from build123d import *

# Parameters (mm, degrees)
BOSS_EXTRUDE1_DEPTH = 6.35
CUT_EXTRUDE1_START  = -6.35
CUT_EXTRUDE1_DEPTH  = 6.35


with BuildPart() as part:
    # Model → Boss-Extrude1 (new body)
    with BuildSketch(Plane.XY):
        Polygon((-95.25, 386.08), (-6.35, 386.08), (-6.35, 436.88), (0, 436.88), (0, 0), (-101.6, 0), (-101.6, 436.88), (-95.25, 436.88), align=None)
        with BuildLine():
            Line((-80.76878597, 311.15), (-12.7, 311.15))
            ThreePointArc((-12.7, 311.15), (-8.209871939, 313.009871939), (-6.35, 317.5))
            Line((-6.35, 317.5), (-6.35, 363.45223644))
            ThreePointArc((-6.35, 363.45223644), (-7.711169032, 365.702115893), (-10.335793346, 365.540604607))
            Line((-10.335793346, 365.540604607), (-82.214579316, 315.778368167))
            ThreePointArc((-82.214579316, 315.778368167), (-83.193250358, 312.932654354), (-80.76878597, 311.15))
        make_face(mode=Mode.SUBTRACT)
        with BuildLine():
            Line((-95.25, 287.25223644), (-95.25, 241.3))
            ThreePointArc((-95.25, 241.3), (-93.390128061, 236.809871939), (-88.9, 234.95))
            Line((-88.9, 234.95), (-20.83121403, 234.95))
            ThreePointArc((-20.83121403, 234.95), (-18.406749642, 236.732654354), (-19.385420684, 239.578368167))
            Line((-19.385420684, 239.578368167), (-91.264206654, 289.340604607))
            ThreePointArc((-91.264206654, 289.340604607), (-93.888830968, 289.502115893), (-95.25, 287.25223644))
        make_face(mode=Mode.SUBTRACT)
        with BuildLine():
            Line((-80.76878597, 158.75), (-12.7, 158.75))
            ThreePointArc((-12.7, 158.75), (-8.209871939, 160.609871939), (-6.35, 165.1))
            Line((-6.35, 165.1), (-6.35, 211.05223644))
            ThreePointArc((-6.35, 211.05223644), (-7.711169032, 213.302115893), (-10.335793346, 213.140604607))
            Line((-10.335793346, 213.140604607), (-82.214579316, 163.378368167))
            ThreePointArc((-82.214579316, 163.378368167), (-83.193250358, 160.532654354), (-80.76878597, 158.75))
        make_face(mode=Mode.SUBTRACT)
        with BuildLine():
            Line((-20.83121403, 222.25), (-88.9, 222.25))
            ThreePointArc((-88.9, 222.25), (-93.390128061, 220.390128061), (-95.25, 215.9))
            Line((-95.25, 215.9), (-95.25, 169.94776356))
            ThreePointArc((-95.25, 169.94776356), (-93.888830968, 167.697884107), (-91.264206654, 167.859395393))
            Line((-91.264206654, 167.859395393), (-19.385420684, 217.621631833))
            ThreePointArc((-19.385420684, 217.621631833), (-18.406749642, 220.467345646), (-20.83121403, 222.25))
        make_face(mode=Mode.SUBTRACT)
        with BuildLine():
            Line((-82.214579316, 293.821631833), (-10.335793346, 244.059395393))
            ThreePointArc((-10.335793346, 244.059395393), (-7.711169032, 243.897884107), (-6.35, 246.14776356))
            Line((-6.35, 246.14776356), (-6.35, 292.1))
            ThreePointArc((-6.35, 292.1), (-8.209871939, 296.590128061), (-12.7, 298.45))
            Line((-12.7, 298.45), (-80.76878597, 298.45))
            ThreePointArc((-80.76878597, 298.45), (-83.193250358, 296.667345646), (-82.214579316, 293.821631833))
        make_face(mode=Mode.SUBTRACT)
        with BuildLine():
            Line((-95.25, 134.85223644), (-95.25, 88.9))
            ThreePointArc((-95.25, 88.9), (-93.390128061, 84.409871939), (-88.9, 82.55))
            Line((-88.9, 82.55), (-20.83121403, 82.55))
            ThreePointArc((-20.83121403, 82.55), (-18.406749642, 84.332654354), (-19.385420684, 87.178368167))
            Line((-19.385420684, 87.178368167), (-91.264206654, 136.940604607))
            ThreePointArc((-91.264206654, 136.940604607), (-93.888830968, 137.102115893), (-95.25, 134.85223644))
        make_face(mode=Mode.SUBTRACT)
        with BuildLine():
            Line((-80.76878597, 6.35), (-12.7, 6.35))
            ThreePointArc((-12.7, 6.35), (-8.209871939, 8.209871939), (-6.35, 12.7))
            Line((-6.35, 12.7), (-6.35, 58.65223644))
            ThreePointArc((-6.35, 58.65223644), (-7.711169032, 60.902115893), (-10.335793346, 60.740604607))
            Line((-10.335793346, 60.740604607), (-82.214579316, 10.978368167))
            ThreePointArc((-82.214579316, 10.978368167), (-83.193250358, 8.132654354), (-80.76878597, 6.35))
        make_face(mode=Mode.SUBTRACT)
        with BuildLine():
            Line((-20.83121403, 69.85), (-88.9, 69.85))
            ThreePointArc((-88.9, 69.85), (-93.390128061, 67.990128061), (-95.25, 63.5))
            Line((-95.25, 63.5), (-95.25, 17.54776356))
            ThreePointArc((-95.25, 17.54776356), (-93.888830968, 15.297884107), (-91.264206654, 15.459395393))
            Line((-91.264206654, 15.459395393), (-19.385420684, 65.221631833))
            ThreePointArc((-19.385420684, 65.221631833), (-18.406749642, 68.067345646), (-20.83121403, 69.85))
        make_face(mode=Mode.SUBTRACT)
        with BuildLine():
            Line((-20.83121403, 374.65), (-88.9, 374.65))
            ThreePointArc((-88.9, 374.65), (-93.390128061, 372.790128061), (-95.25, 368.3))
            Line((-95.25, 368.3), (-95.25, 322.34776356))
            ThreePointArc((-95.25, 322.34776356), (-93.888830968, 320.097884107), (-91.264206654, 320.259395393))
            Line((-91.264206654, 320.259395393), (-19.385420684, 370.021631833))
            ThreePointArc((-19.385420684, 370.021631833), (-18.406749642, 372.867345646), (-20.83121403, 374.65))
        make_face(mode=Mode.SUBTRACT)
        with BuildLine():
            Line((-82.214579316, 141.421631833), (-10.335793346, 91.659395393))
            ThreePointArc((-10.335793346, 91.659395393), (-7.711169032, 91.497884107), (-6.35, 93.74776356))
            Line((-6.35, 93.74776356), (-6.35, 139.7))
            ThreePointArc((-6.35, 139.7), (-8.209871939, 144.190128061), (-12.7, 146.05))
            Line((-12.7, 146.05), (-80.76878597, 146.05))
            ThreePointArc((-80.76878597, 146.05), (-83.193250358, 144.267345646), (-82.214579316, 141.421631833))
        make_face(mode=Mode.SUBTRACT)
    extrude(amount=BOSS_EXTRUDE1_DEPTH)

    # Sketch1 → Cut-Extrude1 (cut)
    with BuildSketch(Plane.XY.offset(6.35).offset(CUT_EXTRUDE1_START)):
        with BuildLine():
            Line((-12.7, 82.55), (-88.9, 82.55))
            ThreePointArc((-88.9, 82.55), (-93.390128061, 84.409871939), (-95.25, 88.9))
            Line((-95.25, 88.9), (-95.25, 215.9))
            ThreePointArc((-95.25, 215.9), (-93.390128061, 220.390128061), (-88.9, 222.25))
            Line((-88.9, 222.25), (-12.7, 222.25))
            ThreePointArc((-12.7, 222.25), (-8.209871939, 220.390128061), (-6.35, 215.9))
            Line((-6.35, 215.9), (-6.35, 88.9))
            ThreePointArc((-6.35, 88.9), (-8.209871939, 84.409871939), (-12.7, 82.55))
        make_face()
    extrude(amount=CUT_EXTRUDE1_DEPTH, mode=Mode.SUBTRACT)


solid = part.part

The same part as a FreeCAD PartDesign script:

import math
import FreeCAD as App
import Part
import Sketcher
Q = App.Units.Quantity

doc = App.newDocument("Part")
body = doc.addObject("PartDesign::Body", "Body")

# Sketch on XY plane
sketch1 = body.newObject("Sketcher::SketchObject", "Sketch")
sketch1.AttachmentSupport = (doc.getObject("XY_Plane"), [""])
sketch1.MapMode = "FlatFace"
sketch1.addGeometry(Part.LineSegment(App.Vector(-6.3, 386.1, 0), App.Vector(-95.2, 386.1, 0)), False)
sketch1.addGeometry(Part.LineSegment(App.Vector(-95.2, 386.1, 0), App.Vector(-95.2, 436.9, 0)), False)
sketch1.addGeometry(Part.LineSegment(App.Vector(-95.2, 436.9, 0), App.Vector(-101.6, 436.9, 0)), False)
sketch1.addGeometry(Part.LineSegment(App.Vector(-101.6, 436.9, 0), App.Vector(-101.6, 0, 0)), False)
sketch1.addGeometry(Part.LineSegment(App.Vector(-101.6, 0, 0), App.Vector(0, 0, 0)), False)
sketch1.addGeometry(Part.LineSegment(App.Vector(0, 0, 0), App.Vector(0, 436.9, 0)), False)
sketch1.addGeometry(Part.LineSegment(App.Vector(0, 436.9, 0), App.Vector(-6.3, 436.9, 0)), False)
sketch1.addGeometry(Part.LineSegment(App.Vector(-6.3, 436.9, 0), App.Vector(-6.3, 386.1, 0)), False)
sketch1.addGeometry(Part.ArcOfCircle(Part.Circle(App.Vector(-80.8, 8.9, 0), App.Vector(0, 0, 1), 2.5), math.radians(125), math.radians(270)), False)
sketch1.addGeometry(Part.LineSegment(App.Vector(-82.2, 11, 0), App.Vector(-10.3, 60.7, 0)), False)
sketch1.addGeometry(Part.ArcOfCircle(Part.Circle(App.Vector(-8.9, 58.7, 0), App.Vector(0, 0, 1), 2.5), math.radians(0), math.radians(125)), False)
sketch1.addGeometry(Part.LineSegment(App.Vector(-6.3, 58.7, 0), App.Vector(-6.3, 12.7, 0)), False)
sketch1.addGeometry(Part.ArcOfCircle(Part.Circle(App.Vector(-12.7, 12.7, 0), App.Vector(0, 0, 1), 6.3), math.radians(-90), math.radians(0)), False)
sketch1.addGeometry(Part.LineSegment(App.Vector(-12.7, 6.3, 0), App.Vector(-80.8, 6.3, 0)), False)
sketch1.addGeometry(Part.ArcOfCircle(Part.Circle(App.Vector(-80.8, 143.5, 0), App.Vector(0, 0, 1), 2.5), math.radians(90), math.radians(235)), False)
sketch1.addGeometry(Part.LineSegment(App.Vector(-80.8, 146.1, 0), App.Vector(-12.7, 146.1, 0)), False)
sketch1.addGeometry(Part.ArcOfCircle(Part.Circle(App.Vector(-12.7, 139.7, 0), App.Vector(0, 0, 1), 6.3), math.radians(0), math.radians(90)), False)
sketch1.addGeometry(Part.LineSegment(App.Vector(-6.3, 139.7, 0), App.Vector(-6.3, 93.7, 0)), False)
sketch1.addGeometry(Part.ArcOfCircle(Part.Circle(App.Vector(-8.9, 93.7, 0), App.Vector(0, 0, 1), 2.5), math.radians(-125), math.radians(0)), False)
sketch1.addGeometry(Part.LineSegment(App.Vector(-10.3, 91.7, 0), App.Vector(-82.2, 141.4, 0)), False)
sketch1.addGeometry(Part.ArcOfCircle(Part.Circle(App.Vector(-80.8, 161.3, 0), App.Vector(0, 0, 1), 2.5), math.radians(125), math.radians(270)), False)
sketch1.addGeometry(Part.LineSegment(App.Vector(-82.2, 163.4, 0), App.Vector(-10.3, 213.1, 0)), False)
sketch1.addGeometry(Part.ArcOfCircle(Part.Circle(App.Vector(-8.9, 211.1, 0), App.Vector(0, 0, 1), 2.5), math.radians(0), math.radians(125)), False)
sketch1.addGeometry(Part.LineSegment(App.Vector(-6.3, 211.1, 0), App.Vector(-6.3, 165.1, 0)), False)
sketch1.addGeometry(Part.ArcOfCircle(Part.Circle(App.Vector(-12.7, 165.1, 0), App.Vector(0, 0, 1), 6.3), math.radians(-90), math.radians(0)), False)
sketch1.addGeometry(Part.LineSegment(App.Vector(-12.7, 158.8, 0), App.Vector(-80.8, 158.8, 0)), False)
sketch1.addGeometry(Part.ArcOfCircle(Part.Circle(App.Vector(-20.8, 67.3, 0), App.Vector(0, 0, 1), 2.5), math.radians(-55), math.radians(90)), False)
sketch1.addGeometry(Part.LineSegment(App.Vector(-19.4, 65.2, 0), App.Vector(-91.3, 15.5, 0)), False)
sketch1.addGeometry(Part.ArcOfCircle(Part.Circle(App.Vector(-92.7, 17.5, 0), App.Vector(0, 0, 1), 2.5), math.radians(180), math.radians(305)), False)
sketch1.addGeometry(Part.LineSegment(App.Vector(-95.2, 17.5, 0), App.Vector(-95.2, 63.5, 0)), False)
sketch1.addGeometry(Part.ArcOfCircle(Part.Circle(App.Vector(-88.9, 63.5, 0), App.Vector(0, 0, 1), 6.3), math.radians(90), math.radians(180)), False)
sketch1.addGeometry(Part.LineSegment(App.Vector(-88.9, 69.8, 0), App.Vector(-20.8, 69.8, 0)), False)
sketch1.addGeometry(Part.ArcOfCircle(Part.Circle(App.Vector(-92.7, 134.9, 0), App.Vector(0, 0, 1), 2.5), math.radians(55), math.radians(180)), False)
sketch1.addGeometry(Part.LineSegment(App.Vector(-91.3, 136.9, 0), App.Vector(-19.4, 87.2, 0)), False)
sketch1.addGeometry(Part.ArcOfCircle(Part.Circle(App.Vector(-20.8, 85.1, 0), App.Vector(0, 0, 1), 2.5), math.radians(-90), math.radians(55)), False)
sketch1.addGeometry(Part.LineSegment(App.Vector(-20.8, 82.5, 0), App.Vector(-88.9, 82.5, 0)), False)
sketch1.addGeometry(Part.ArcOfCircle(Part.Circle(App.Vector(-88.9, 88.9, 0), App.Vector(0, 0, 1), 6.3), math.radians(180), math.radians(270)), False)
sketch1.addGeometry(Part.LineSegment(App.Vector(-95.2, 88.9, 0), App.Vector(-95.2, 134.9, 0)), False)
sketch1.addGeometry(Part.ArcOfCircle(Part.Circle(App.Vector(-80.8, 295.9, 0), App.Vector(0, 0, 1), 2.5), math.radians(90), math.radians(235)), False)
sketch1.addGeometry(Part.LineSegment(App.Vector(-80.8, 298.4, 0), App.Vector(-12.7, 298.4, 0)), False)
sketch1.addGeometry(Part.ArcOfCircle(Part.Circle(App.Vector(-12.7, 292.1, 0), App.Vector(0, 0, 1), 6.3), math.radians(0), math.radians(90)), False)
sketch1.addGeometry(Part.LineSegment(App.Vector(-6.3, 292.1, 0), App.Vector(-6.3, 246.1, 0)), False)
sketch1.addGeometry(Part.ArcOfCircle(Part.Circle(App.Vector(-8.9, 246.1, 0), App.Vector(0, 0, 1), 2.5), math.radians(-125), math.radians(0)), False)
sketch1.addGeometry(Part.LineSegment(App.Vector(-10.3, 244.1, 0), App.Vector(-82.2, 293.8, 0)), False)
sketch1.addGeometry(Part.ArcOfCircle(Part.Circle(App.Vector(-80.8, 313.7, 0), App.Vector(0, 0, 1), 2.5), math.radians(125), math.radians(270)), False)
sketch1.addGeometry(Part.LineSegment(App.Vector(-82.2, 315.8, 0), App.Vector(-10.3, 365.5, 0)), False)
sketch1.addGeometry(Part.ArcOfCircle(Part.Circle(App.Vector(-8.9, 363.5, 0), App.Vector(0, 0, 1), 2.5), math.radians(0), math.radians(125)), False)
sketch1.addGeometry(Part.LineSegment(App.Vector(-6.3, 363.5, 0), App.Vector(-6.3, 317.5, 0)), False)
sketch1.addGeometry(Part.ArcOfCircle(Part.Circle(App.Vector(-12.7, 317.5, 0), App.Vector(0, 0, 1), 6.3), math.radians(-90), math.radians(0)), False)
sketch1.addGeometry(Part.LineSegment(App.Vector(-12.7, 311.1, 0), App.Vector(-80.8, 311.1, 0)), False)
sketch1.addGeometry(Part.ArcOfCircle(Part.Circle(App.Vector(-20.8, 219.7, 0), App.Vector(0, 0, 1), 2.5), math.radians(-55), math.radians(90)), False)
sketch1.addGeometry(Part.LineSegment(App.Vector(-19.4, 217.6, 0), App.Vector(-91.3, 167.9, 0)), False)
sketch1.addGeometry(Part.ArcOfCircle(Part.Circle(App.Vector(-92.7, 169.9, 0), App.Vector(0, 0, 1), 2.5), math.radians(180), math.radians(305)), False)
sketch1.addGeometry(Part.LineSegment(App.Vector(-95.2, 169.9, 0), App.Vector(-95.2, 215.9, 0)), False)
sketch1.addGeometry(Part.ArcOfCircle(Part.Circle(App.Vector(-88.9, 215.9, 0), App.Vector(0, 0, 1), 6.3), math.radians(90), math.radians(180)), False)
sketch1.addGeometry(Part.LineSegment(App.Vector(-88.9, 222.2, 0), App.Vector(-20.8, 222.2, 0)), False)
sketch1.addGeometry(Part.ArcOfCircle(Part.Circle(App.Vector(-92.7, 287.3, 0), App.Vector(0, 0, 1), 2.5), math.radians(55), math.radians(180)), False)
sketch1.addGeometry(Part.LineSegment(App.Vector(-91.3, 289.3, 0), App.Vector(-19.4, 239.6, 0)), False)
sketch1.addGeometry(Part.ArcOfCircle(Part.Circle(App.Vector(-20.8, 237.5, 0), App.Vector(0, 0, 1), 2.5), math.radians(-90), math.radians(55)), False)
sketch1.addGeometry(Part.LineSegment(App.Vector(-20.8, 234.9, 0), App.Vector(-88.9, 234.9, 0)), False)
sketch1.addGeometry(Part.ArcOfCircle(Part.Circle(App.Vector(-88.9, 241.3, 0), App.Vector(0, 0, 1), 6.3), math.radians(180), math.radians(270)), False)
sketch1.addGeometry(Part.LineSegment(App.Vector(-95.2, 241.3, 0), App.Vector(-95.2, 287.3, 0)), False)
sketch1.addGeometry(Part.ArcOfCircle(Part.Circle(App.Vector(-20.8, 372.1, 0), App.Vector(0, 0, 1), 2.5), math.radians(-55), math.radians(90)), False)
sketch1.addGeometry(Part.LineSegment(App.Vector(-19.4, 370, 0), App.Vector(-91.3, 320.3, 0)), False)
sketch1.addGeometry(Part.ArcOfCircle(Part.Circle(App.Vector(-92.7, 322.3, 0), App.Vector(0, 0, 1), 2.5), math.radians(180), math.radians(305)), False)
sketch1.addGeometry(Part.LineSegment(App.Vector(-95.2, 322.3, 0), App.Vector(-95.2, 368.3, 0)), False)
sketch1.addGeometry(Part.ArcOfCircle(Part.Circle(App.Vector(-88.9, 368.3, 0), App.Vector(0, 0, 1), 6.3), math.radians(90), math.radians(180)), False)
sketch1.addGeometry(Part.LineSegment(App.Vector(-88.9, 374.6, 0), App.Vector(-20.8, 374.6, 0)), False)
sketch1.addConstraint(Sketcher.Constraint("Coincident", 0, 2, 1, 1))
sketch1.addConstraint(Sketcher.Constraint("Coincident", 1, 2, 2, 1))
sketch1.addConstraint(Sketcher.Constraint("Coincident", 2, 2, 3, 1))
sketch1.addConstraint(Sketcher.Constraint("Coincident", 3, 2, 4, 1))
sketch1.addConstraint(Sketcher.Constraint("Coincident", 4, 2, 5, 1))
sketch1.addConstraint(Sketcher.Constraint("Coincident", 5, 2, 6, 1))
sketch1.addConstraint(Sketcher.Constraint("Coincident", 6, 2, 7, 1))
sketch1.addConstraint(Sketcher.Constraint("Coincident", 7, 2, 0, 1))
sketch1.addConstraint(Sketcher.Constraint("Tangent", 8, 1, 9, 1))
sketch1.addConstraint(Sketcher.Constraint("Tangent", 9, 2, 10, 2))
sketch1.addConstraint(Sketcher.Constraint("Tangent", 10, 1, 11, 1))
sketch1.addConstraint(Sketcher.Constraint("Tangent", 11, 2, 12, 2))
sketch1.addConstraint(Sketcher.Constraint("Tangent", 12, 1, 13, 1))
sketch1.addConstraint(Sketcher.Constraint("Tangent", 13, 2, 8, 2))
sketch1.addConstraint(Sketcher.Constraint("Tangent", 14, 1, 15, 1))
sketch1.addConstraint(Sketcher.Constraint("Tangent", 15, 2, 16, 2))
sketch1.addConstraint(Sketcher.Constraint("Tangent", 16, 1, 17, 1))
sketch1.addConstraint(Sketcher.Constraint("Tangent", 17, 2, 18, 2))
sketch1.addConstraint(Sketcher.Constraint("Tangent", 18, 1, 19, 1))
sketch1.addConstraint(Sketcher.Constraint("Tangent", 19, 2, 14, 2))
sketch1.addConstraint(Sketcher.Constraint("Tangent", 20, 1, 21, 1))
sketch1.addConstraint(Sketcher.Constraint("Tangent", 21, 2, 22, 2))
sketch1.addConstraint(Sketcher.Constraint("Tangent", 22, 1, 23, 1))
sketch1.addConstraint(Sketcher.Constraint("Tangent", 23, 2, 24, 2))
sketch1.addConstraint(Sketcher.Constraint("Tangent", 24, 1, 25, 1))
sketch1.addConstraint(Sketcher.Constraint("Tangent", 25, 2, 20, 2))
sketch1.addConstraint(Sketcher.Constraint("Tangent", 26, 1, 27, 1))
sketch1.addConstraint(Sketcher.Constraint("Tangent", 27, 2, 28, 2))
sketch1.addConstraint(Sketcher.Constraint("Tangent", 28, 1, 29, 1))
sketch1.addConstraint(Sketcher.Constraint("Tangent", 29, 2, 30, 2))
sketch1.addConstraint(Sketcher.Constraint("Tangent", 30, 1, 31, 1))
sketch1.addConstraint(Sketcher.Constraint("Tangent", 31, 2, 26, 2))
sketch1.addConstraint(Sketcher.Constraint("Tangent", 32, 1, 33, 1))
sketch1.addConstraint(Sketcher.Constraint("Tangent", 33, 2, 34, 2))
sketch1.addConstraint(Sketcher.Constraint("Tangent", 34, 1, 35, 1))
sketch1.addConstraint(Sketcher.Constraint("Tangent", 35, 2, 36, 2))
sketch1.addConstraint(Sketcher.Constraint("Tangent", 36, 1, 37, 1))
sketch1.addConstraint(Sketcher.Constraint("Tangent", 37, 2, 32, 2))
sketch1.addConstraint(Sketcher.Constraint("Tangent", 38, 1, 39, 1))
sketch1.addConstraint(Sketcher.Constraint("Tangent", 39, 2, 40, 2))
sketch1.addConstraint(Sketcher.Constraint("Tangent", 40, 1, 41, 1))
sketch1.addConstraint(Sketcher.Constraint("Tangent", 41, 2, 42, 2))
sketch1.addConstraint(Sketcher.Constraint("Tangent", 42, 1, 43, 1))
sketch1.addConstraint(Sketcher.Constraint("Tangent", 43, 2, 38, 2))
sketch1.addConstraint(Sketcher.Constraint("Tangent", 44, 1, 45, 1))
sketch1.addConstraint(Sketcher.Constraint("Tangent", 45, 2, 46, 2))
sketch1.addConstraint(Sketcher.Constraint("Tangent", 46, 1, 47, 1))
sketch1.addConstraint(Sketcher.Constraint("Tangent", 47, 2, 48, 2))
sketch1.addConstraint(Sketcher.Constraint("Tangent", 48, 1, 49, 1))
sketch1.addConstraint(Sketcher.Constraint("Tangent", 49, 2, 44, 2))
sketch1.addConstraint(Sketcher.Constraint("Tangent", 50, 1, 51, 1))
sketch1.addConstraint(Sketcher.Constraint("Tangent", 51, 2, 52, 2))
sketch1.addConstraint(Sketcher.Constraint("Tangent", 52, 1, 53, 1))
sketch1.addConstraint(Sketcher.Constraint("Tangent", 53, 2, 54, 2))
sketch1.addConstraint(Sketcher.Constraint("Tangent", 54, 1, 55, 1))
sketch1.addConstraint(Sketcher.Constraint("Tangent", 55, 2, 50, 2))
sketch1.addConstraint(Sketcher.Constraint("Tangent", 56, 1, 57, 1))
sketch1.addConstraint(Sketcher.Constraint("Tangent", 57, 2, 58, 2))
sketch1.addConstraint(Sketcher.Constraint("Tangent", 58, 1, 59, 1))
sketch1.addConstraint(Sketcher.Constraint("Tangent", 59, 2, 60, 2))
sketch1.addConstraint(Sketcher.Constraint("Tangent", 60, 1, 61, 1))
sketch1.addConstraint(Sketcher.Constraint("Tangent", 61, 2, 56, 2))
sketch1.addConstraint(Sketcher.Constraint("Tangent", 62, 1, 63, 1))
sketch1.addConstraint(Sketcher.Constraint("Tangent", 63, 2, 64, 2))
sketch1.addConstraint(Sketcher.Constraint("Tangent", 64, 1, 65, 1))
sketch1.addConstraint(Sketcher.Constraint("Tangent", 65, 2, 66, 2))
sketch1.addConstraint(Sketcher.Constraint("Tangent", 66, 1, 67, 1))
sketch1.addConstraint(Sketcher.Constraint("Tangent", 67, 2, 62, 2))
sketch1.addConstraint(Sketcher.Constraint("Horizontal", 0))
sketch1.addConstraint(Sketcher.Constraint("Vertical", 1))
sketch1.addConstraint(Sketcher.Constraint("Horizontal", 2))
sketch1.addConstraint(Sketcher.Constraint("Vertical", 3))
sketch1.addConstraint(Sketcher.Constraint("Horizontal", 4))
sketch1.addConstraint(Sketcher.Constraint("Vertical", 5))
sketch1.addConstraint(Sketcher.Constraint("Horizontal", 6))
sketch1.addConstraint(Sketcher.Constraint("Vertical", 7))
sketch1.addConstraint(Sketcher.Constraint("Vertical", 11))
sketch1.addConstraint(Sketcher.Constraint("Horizontal", 13))
sketch1.addConstraint(Sketcher.Constraint("Horizontal", 15))
sketch1.addConstraint(Sketcher.Constraint("Vertical", 17))
sketch1.addConstraint(Sketcher.Constraint("Vertical", 23))
sketch1.addConstraint(Sketcher.Constraint("Horizontal", 25))
sketch1.addConstraint(Sketcher.Constraint("Vertical", 29))
sketch1.addConstraint(Sketcher.Constraint("Horizontal", 31))
sketch1.addConstraint(Sketcher.Constraint("Horizontal", 35))
sketch1.addConstraint(Sketcher.Constraint("Vertical", 37))
sketch1.addConstraint(Sketcher.Constraint("Horizontal", 39))
sketch1.addConstraint(Sketcher.Constraint("Vertical", 41))
sketch1.addConstraint(Sketcher.Constraint("Vertical", 47))
sketch1.addConstraint(Sketcher.Constraint("Horizontal", 49))
sketch1.addConstraint(Sketcher.Constraint("Vertical", 53))
sketch1.addConstraint(Sketcher.Constraint("Horizontal", 55))
sketch1.addConstraint(Sketcher.Constraint("Horizontal", 59))
sketch1.addConstraint(Sketcher.Constraint("Vertical", 61))
sketch1.addConstraint(Sketcher.Constraint("Vertical", 65))
sketch1.addConstraint(Sketcher.Constraint("Horizontal", 67))
sketch1.addConstraint(Sketcher.Constraint("Coincident", 4, 2, -1, 1))
sketch1.addConstraint(Sketcher.Constraint("Equal", 8, 10))
sketch1.addConstraint(Sketcher.Constraint("Equal", 10, 14))
sketch1.addConstraint(Sketcher.Constraint("Equal", 12, 16))
sketch1.addConstraint(Sketcher.Constraint("Equal", 14, 18))
sketch1.addConstraint(Sketcher.Constraint("Equal", 18, 20))
sketch1.addConstraint(Sketcher.Constraint("Equal", 20, 22))
sketch1.addConstraint(Sketcher.Constraint("Equal", 16, 24))
sketch1.addConstraint(Sketcher.Constraint("Equal", 22, 26))
sketch1.addConstraint(Sketcher.Constraint("Equal", 26, 28))
sketch1.addConstraint(Sketcher.Constraint("Equal", 24, 30))
sketch1.addConstraint(Sketcher.Constraint("Equal", 28, 32))
sketch1.addConstraint(Sketcher.Constraint("Equal", 32, 34))
sketch1.addConstraint(Sketcher.Constraint("Equal", 30, 36))
sketch1.addConstraint(Sketcher.Constraint("Equal", 34, 38))
sketch1.addConstraint(Sketcher.Constraint("Equal", 36, 40))
sketch1.addConstraint(Sketcher.Constraint("Equal", 38, 42))
sketch1.addConstraint(Sketcher.Constraint("Equal", 42, 44))
sketch1.addConstraint(Sketcher.Constraint("Equal", 44, 46))
sketch1.addConstraint(Sketcher.Constraint("Equal", 40, 48))
sketch1.addConstraint(Sketcher.Constraint("Equal", 46, 50))
sketch1.addConstraint(Sketcher.Constraint("Equal", 50, 52))
sketch1.addConstraint(Sketcher.Constraint("Equal", 48, 54))
sketch1.addConstraint(Sketcher.Constraint("Equal", 52, 56))
sketch1.addConstraint(Sketcher.Constraint("Equal", 56, 58))
sketch1.addConstraint(Sketcher.Constraint("Equal", 54, 60))
sketch1.addConstraint(Sketcher.Constraint("Equal", 58, 62))
sketch1.addConstraint(Sketcher.Constraint("Equal", 62, 64))
sketch1.addConstraint(Sketcher.Constraint("Equal", 60, 66))
sketch1.addConstraint(Sketcher.Constraint("Parallel", 9, 21))
sketch1.addConstraint(Sketcher.Constraint("Parallel", 21, 27))
sketch1.addConstraint(Sketcher.Constraint("Parallel", 19, 33))
sketch1.addConstraint(Sketcher.Constraint("Parallel", 33, 43))
sketch1.addConstraint(Sketcher.Constraint("Parallel", 27, 45))
sketch1.addConstraint(Sketcher.Constraint("Parallel", 45, 51))
sketch1.addConstraint(Sketcher.Constraint("Parallel", 43, 57))
sketch1.addConstraint(Sketcher.Constraint("Parallel", 51, 63))
sketch1.addConstraint(Sketcher.Constraint("Horizontal", 2, 2, 5, 2))
sketch1.addConstraint(Sketcher.Constraint("Vertical", 8, 3, 14, 3))
sketch1.addConstraint(Sketcher.Constraint("Vertical", 12, 3, 16, 3))
sketch1.addConstraint(Sketcher.Constraint("Vertical", 14, 3, 20, 3))
sketch1.addConstraint(Sketcher.Constraint("Vertical", 18, 3, 22, 3))
sketch1.addConstraint(Sketcher.Constraint("Vertical", 28, 3, 32, 3))
sketch1.addConstraint(Sketcher.Constraint("Vertical", 26, 3, 34, 3))
sketch1.addConstraint(Sketcher.Constraint("Vertical", 20, 3, 38, 3))
sketch1.addConstraint(Sketcher.Constraint("Vertical", 24, 3, 40, 3))
sketch1.addConstraint(Sketcher.Constraint("Vertical", 38, 3, 44, 3))
sketch1.addConstraint(Sketcher.Constraint("Vertical", 42, 3, 46, 3))
sketch1.addConstraint(Sketcher.Constraint("Vertical", 34, 3, 50, 3))
sketch1.addConstraint(Sketcher.Constraint("Vertical", 32, 3, 52, 3))
sketch1.addConstraint(Sketcher.Constraint("Vertical", 52, 3, 56, 3))
sketch1.addConstraint(Sketcher.Constraint("Vertical", 50, 3, 58, 3))
sketch1.addConstraint(Sketcher.Constraint("Vertical", 58, 3, 62, 3))
sketch1.addConstraint(Sketcher.Constraint("Vertical", 56, 3, 64, 3))
sketch1.addConstraint(Sketcher.Constraint("Vertical", 7, 2, 10, 1))
sketch1.addConstraint(Sketcher.Constraint("Vertical", 9, 2, 18, 1))
sketch1.addConstraint(Sketcher.Constraint("Vertical", 1, 2, 28, 1))
sketch1.addConstraint(Sketcher.Constraint("Equal", 2, 6))
sketch1.addConstraint(Sketcher.Constraint("Equal", 25, 31))
sketch1.addConstraint(Sketcher.Constraint("Radius", 8, Q("0.1 in")))
sketch1.addConstraint(Sketcher.Constraint("DistanceX", 4, 1, 4, 2, Q("4 in")))
sketch1.addConstraint(Sketcher.Constraint("DistanceY", 1, 1, 1, 2, Q("2 in")))
sketch1.addConstraint(Sketcher.Constraint("Radius", 12, Q("0.25 in")))
sketch1.addConstraint(Sketcher.Constraint("DistanceX", 0, 2, 0, 1, Q("3.5 in")))
sketch1.addConstraint(Sketcher.Constraint("DistanceY", 3, 2, 3, 1, Q("17.2 in")))
sketch1.addConstraint(Sketcher.Constraint("DistanceY", -1, 1, 12, 3, Q("0.5 in")))
sketch1.addConstraint(Sketcher.Constraint("DistanceY", -1, 1, 16, 3, Q("5.5 in")))
sketch1.addConstraint(Sketcher.Constraint("DistanceY", -1, 1, 24, 3, Q("6.5 in")))
sketch1.addConstraint(Sketcher.Constraint("DistanceY", -1, 1, 30, 3, Q("2.5 in")))
sketch1.addConstraint(Sketcher.Constraint("DistanceY", -1, 1, 36, 3, Q("3.5 in")))
sketch1.addConstraint(Sketcher.Constraint("DistanceY", -1, 1, 40, 3, Q("11.5 in")))
sketch1.addConstraint(Sketcher.Constraint("DistanceY", -1, 1, 48, 3, Q("12.5 in")))
sketch1.addConstraint(Sketcher.Constraint("DistanceY", -1, 1, 54, 3, Q("8.5 in")))
sketch1.addConstraint(Sketcher.Constraint("DistanceY", -1, 1, 60, 3, Q("9.5 in")))
sketch1.addConstraint(Sketcher.Constraint("DistanceY", -1, 1, 66, 3, Q("14.5 in")))
sketch1.addConstraint(Sketcher.Constraint("Distance", 9, Q("87.423338 mm")))
sketch1.addConstraint(Sketcher.Constraint("DistanceX", 13, 2, 13, 1, Q("68.068786 mm")))
pad1 = body.newObject("PartDesign::Pad", "Pad")
pad1.Profile = sketch1
pad1.Length = Q("0.25 in")

# Sketch on XY plane
sketch2 = body.newObject("Sketcher::SketchObject", "Sketch001")
sketch2.AttachmentSupport = (doc.getObject("XY_Plane"), [""])
sketch2.MapMode = "FlatFace"
sketch2.addGeometry(Part.LineSegment(App.Vector(-89, 83, 0), App.Vector(-13, 83, 0)), False)
sketch2.addGeometry(Part.ArcOfCircle(Part.Circle(App.Vector(-13, 89, 0), App.Vector(0, 0, 1), 6), math.radians(-90), math.radians(0)), False)
sketch2.addGeometry(Part.LineSegment(App.Vector(-6, 89, 0), App.Vector(-6, 216, 0)), False)
sketch2.addGeometry(Part.ArcOfCircle(Part.Circle(App.Vector(-13, 216, 0), App.Vector(0, 0, 1), 6), math.radians(0), math.radians(90)), False)
sketch2.addGeometry(Part.LineSegment(App.Vector(-13, 222, 0), App.Vector(-89, 222, 0)), False)
sketch2.addGeometry(Part.ArcOfCircle(Part.Circle(App.Vector(-89, 216, 0), App.Vector(0, 0, 1), 6), math.radians(90), math.radians(180)), False)
sketch2.addGeometry(Part.LineSegment(App.Vector(-95, 216, 0), App.Vector(-95, 89, 0)), False)
sketch2.addGeometry(Part.ArcOfCircle(Part.Circle(App.Vector(-89, 89, 0), App.Vector(0, 0, 1), 6), math.radians(180), math.radians(270)), False)
sketch2.addConstraint(Sketcher.Constraint("Tangent", 0, 2, 1, 1))
sketch2.addConstraint(Sketcher.Constraint("Tangent", 1, 2, 2, 1))
sketch2.addConstraint(Sketcher.Constraint("Tangent", 2, 2, 3, 1))
sketch2.addConstraint(Sketcher.Constraint("Tangent", 3, 2, 4, 1))
sketch2.addConstraint(Sketcher.Constraint("Tangent", 4, 2, 5, 1))
sketch2.addConstraint(Sketcher.Constraint("Tangent", 5, 2, 6, 1))
sketch2.addConstraint(Sketcher.Constraint("Tangent", 6, 2, 7, 1))
sketch2.addConstraint(Sketcher.Constraint("Tangent", 7, 2, 0, 1))
sketch2.addConstraint(Sketcher.Constraint("Horizontal", 0))
sketch2.addConstraint(Sketcher.Constraint("Vertical", 2))
sketch2.addConstraint(Sketcher.Constraint("Horizontal", 4))
sketch2.addConstraint(Sketcher.Constraint("Vertical", 6))
sketch2.addConstraint(Sketcher.Constraint("Equal", 1, 3))
sketch2.addConstraint(Sketcher.Constraint("Equal", 3, 5))
sketch2.addConstraint(Sketcher.Constraint("Equal", 5, 7))
sketch2.addConstraint(Sketcher.Constraint("DistanceX", 0, 1, 0, 2, Q("3 in")))
sketch2.addConstraint(Sketcher.Constraint("DistanceY", 2, 1, 2, 2, Q("5 in")))
sketch2.addConstraint(Sketcher.Constraint("Radius", 1, Q("0.25 in")))
sketch2.addConstraint(Sketcher.Constraint("DistanceX", 1, 3, -1, 1, Q("0.5 in")))
sketch2.addConstraint(Sketcher.Constraint("DistanceY", -1, 1, 1, 3, Q("3.5 in")))
pocket1 = body.newObject("PartDesign::Pocket", "Pocket")
pocket1.Profile = sketch2
pocket1.Length = Q("0.25 in")
pocket1.Reversed = True

doc.recompute()
